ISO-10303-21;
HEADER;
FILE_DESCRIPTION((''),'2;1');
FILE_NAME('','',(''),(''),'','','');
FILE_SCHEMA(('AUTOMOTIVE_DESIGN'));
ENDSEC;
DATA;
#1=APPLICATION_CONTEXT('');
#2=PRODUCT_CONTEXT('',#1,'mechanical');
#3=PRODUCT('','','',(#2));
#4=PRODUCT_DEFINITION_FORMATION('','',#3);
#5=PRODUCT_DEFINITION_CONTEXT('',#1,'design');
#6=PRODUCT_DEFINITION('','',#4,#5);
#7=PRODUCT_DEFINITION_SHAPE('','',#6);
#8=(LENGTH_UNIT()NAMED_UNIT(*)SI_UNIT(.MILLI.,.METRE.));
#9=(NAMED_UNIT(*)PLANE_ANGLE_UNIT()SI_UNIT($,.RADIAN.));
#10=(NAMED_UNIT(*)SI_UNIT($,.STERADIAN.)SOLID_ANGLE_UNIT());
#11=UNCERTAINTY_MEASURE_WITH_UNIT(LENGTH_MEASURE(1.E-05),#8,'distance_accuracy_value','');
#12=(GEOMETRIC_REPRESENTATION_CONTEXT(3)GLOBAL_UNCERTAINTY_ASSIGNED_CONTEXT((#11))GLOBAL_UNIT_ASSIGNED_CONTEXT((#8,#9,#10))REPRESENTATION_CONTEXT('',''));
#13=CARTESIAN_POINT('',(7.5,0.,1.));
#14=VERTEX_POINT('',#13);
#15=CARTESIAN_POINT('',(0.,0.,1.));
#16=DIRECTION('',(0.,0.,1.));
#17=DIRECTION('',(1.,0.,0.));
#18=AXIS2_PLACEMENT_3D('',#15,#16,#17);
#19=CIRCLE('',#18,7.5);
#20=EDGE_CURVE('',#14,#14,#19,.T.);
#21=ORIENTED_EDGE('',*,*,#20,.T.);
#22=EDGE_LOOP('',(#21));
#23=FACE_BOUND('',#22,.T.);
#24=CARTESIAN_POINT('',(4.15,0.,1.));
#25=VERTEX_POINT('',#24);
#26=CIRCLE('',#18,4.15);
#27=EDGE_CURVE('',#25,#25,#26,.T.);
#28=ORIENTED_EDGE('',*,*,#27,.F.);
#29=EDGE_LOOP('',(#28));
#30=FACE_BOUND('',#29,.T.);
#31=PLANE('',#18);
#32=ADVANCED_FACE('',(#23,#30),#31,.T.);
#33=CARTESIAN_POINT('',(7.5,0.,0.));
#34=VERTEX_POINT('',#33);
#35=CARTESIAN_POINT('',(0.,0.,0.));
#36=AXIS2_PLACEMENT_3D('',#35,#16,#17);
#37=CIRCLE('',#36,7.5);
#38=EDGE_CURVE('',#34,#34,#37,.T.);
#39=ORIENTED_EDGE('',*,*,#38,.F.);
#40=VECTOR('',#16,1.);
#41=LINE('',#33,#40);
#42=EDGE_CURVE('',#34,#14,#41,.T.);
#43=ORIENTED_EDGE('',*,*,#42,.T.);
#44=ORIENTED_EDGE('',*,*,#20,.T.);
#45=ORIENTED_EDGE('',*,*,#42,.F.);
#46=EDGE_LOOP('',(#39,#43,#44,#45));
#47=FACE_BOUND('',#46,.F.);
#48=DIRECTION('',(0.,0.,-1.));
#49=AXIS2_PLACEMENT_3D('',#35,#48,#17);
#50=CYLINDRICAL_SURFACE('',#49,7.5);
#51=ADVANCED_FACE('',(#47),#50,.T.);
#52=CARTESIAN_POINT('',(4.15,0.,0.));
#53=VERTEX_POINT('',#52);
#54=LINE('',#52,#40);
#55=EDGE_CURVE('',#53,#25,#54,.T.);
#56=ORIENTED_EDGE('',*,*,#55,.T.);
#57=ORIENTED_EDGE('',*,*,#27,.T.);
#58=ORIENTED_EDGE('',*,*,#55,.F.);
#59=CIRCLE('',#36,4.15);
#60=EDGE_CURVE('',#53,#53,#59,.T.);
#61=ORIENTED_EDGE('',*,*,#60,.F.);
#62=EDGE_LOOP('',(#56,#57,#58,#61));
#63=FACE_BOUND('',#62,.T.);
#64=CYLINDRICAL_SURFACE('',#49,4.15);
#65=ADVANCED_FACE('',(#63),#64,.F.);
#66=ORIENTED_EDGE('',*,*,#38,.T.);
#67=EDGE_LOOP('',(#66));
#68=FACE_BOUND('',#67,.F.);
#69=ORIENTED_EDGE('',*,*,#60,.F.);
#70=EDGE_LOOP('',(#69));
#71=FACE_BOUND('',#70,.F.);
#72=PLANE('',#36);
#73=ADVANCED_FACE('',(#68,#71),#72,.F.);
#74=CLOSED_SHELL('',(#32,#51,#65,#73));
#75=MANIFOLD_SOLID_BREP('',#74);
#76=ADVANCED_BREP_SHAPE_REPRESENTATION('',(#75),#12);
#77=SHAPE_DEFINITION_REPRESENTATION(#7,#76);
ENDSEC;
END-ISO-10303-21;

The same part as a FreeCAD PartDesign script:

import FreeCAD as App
import Part
import Sketcher

V = App.Vector
Q = App.Units.Quantity

doc = App.newDocument("Part")
body = doc.addObject("PartDesign::Body", "Body")

# Sketch on XY plane
sketch1 = body.newObject("Sketcher::SketchObject", "Sketch")
sketch1.AttachmentSupport = (doc.getObject("XY_Plane"), [""])
sketch1.MapMode = "FlatFace"
sketch1.addGeometry(Part.Circle(V(0, 0, 0), V(0, 0, 1), 7.5), False)
sketch1.addGeometry(Part.Circle(V(0, 0, 0), V(0, 0, 1), 4.2), False)
sketch1.addConstraint(Sketcher.Constraint("Coincident", 0, 3, -1, 1))
sketch1.addConstraint(Sketcher.Constraint("Coincident", 1, 3, -1, 1))
sketch1.addConstraint(Sketcher.Constraint("Diameter", 0, Q("15 mm")))
sketch1.addConstraint(Sketcher.Constraint("Diameter", 1, Q("8.3 mm")))
pad1 = body.newObject("PartDesign::Pad", "Pad")
pad1.Profile = sketch1
pad1.Length = 1

doc.recompute()
